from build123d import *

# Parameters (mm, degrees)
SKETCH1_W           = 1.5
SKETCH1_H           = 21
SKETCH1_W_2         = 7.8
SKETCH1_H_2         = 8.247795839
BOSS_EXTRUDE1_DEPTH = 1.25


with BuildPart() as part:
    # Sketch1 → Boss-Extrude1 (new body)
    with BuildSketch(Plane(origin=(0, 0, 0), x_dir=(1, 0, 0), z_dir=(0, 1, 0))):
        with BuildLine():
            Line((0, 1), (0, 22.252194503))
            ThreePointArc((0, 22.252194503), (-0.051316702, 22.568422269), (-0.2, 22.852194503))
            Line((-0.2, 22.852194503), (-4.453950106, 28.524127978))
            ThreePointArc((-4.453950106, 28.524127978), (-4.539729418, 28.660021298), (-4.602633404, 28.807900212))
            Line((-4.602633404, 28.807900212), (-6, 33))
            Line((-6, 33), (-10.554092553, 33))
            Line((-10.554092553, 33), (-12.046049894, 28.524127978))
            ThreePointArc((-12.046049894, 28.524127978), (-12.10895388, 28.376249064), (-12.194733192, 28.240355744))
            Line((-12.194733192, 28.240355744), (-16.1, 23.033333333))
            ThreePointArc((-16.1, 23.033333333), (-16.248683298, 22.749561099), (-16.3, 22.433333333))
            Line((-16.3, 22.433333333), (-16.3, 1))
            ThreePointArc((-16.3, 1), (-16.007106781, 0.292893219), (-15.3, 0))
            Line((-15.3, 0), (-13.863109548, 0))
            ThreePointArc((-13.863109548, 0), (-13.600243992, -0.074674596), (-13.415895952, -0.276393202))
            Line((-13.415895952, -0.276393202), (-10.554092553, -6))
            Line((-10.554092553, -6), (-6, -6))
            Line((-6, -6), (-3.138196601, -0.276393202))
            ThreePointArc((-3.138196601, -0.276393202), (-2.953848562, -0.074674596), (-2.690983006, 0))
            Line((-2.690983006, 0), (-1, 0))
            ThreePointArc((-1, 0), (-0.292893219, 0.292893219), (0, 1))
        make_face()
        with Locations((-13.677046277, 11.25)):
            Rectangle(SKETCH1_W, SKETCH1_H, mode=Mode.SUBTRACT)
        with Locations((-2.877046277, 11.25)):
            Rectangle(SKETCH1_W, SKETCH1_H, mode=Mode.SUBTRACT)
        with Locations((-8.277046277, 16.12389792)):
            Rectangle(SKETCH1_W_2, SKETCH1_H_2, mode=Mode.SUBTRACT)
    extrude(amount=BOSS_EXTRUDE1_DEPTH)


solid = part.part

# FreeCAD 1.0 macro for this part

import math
import FreeCAD as App
import Part
import Sketcher

V = App.Vector
Q = App.Units.Quantity


def add_polygon(sketch, points):
    """Adds a closed chain of lines whose ends are joined by coincident constraints."""
    first, n = sketch.GeometryCount, len(points)
    for a, b in zip(points, points[1:] + points[:1]):
        sketch.addGeometry(Part.LineSegment(App.Vector(*a, 0), App.Vector(*b, 0)), False)
    for i in range(n):
        sketch.addConstraint(Sketcher.Constraint("Coincident", first + i, 2, first + (i + 1) % n, 1))

doc = App.newDocument("Part")
body = doc.addObject("PartDesign::Body", "Body")

sketch1 = doc.addObject("Sketcher::SketchObject", "Sketch")
body.addObject(sketch1)
sketch1.AttachmentSupport = (doc.XZ_Plane, [""])
sketch1.MapMode = "FlatFace"
sketch1.addGeometry(Part.LineSegment(V(0, -1, 0), V(0, -22.25, 0)), False)
sketch1.addGeometry(Part.ArcOfCircle(Part.Circle(V(-1, -22.25, 0), V(0, 0, 1), 1), math.radians(-37), math.radians(0)), False)
sketch1.addGeometry(Part.LineSegment(V(-0.2, -22.85, 0), V(-4.45, -28.52, 0)), False)
sketch1.addGeometry(Part.ArcOfCircle(Part.Circle(V(-3.65, -29.12, 0), V(0, 0, 1), 1), math.radians(143.13), math.radians(161.57)), False)
sketch1.addGeometry(Part.LineSegment(V(-4.6, -28.81, 0), V(-6, -33, 0)), False)
sketch1.addGeometry(Part.LineSegment(V(-6, -33, 0), V(-10.55, -33, 0)), False)
sketch1.addGeometry(Part.LineSegment(V(-10.55, -33, 0), V(-12.05, -28.52, 0)), False)
sketch1.addGeometry(Part.ArcOfCircle(Part.Circle(V(-12.99, -28.84, 0), V(0, 0, 1), 1), math.radians(18.43), math.radians(36.87)), False)
sketch1.addGeometry(Part.LineSegment(V(-12.19, -28.24, 0), V(-16.1, -23.03, 0)), False)
sketch1.addGeometry(Part.ArcOfCircle(Part.Circle(V(-15.3, -22.43, 0), V(0, 0, 1), 1), math.radians(180), math.radians(217)), False)
sketch1.addGeometry(Part.LineSegment(V(-16.3, -22.43, 0), V(-16.3, -1, 0)), False)
sketch1.addGeometry(Part.ArcOfCircle(Part.Circle(V(-15.3, -1, 0), V(0, 0, 1), 1), math.radians(90), math.radians(180)), False)
sketch1.addGeometry(Part.LineSegment(V(-15.3, 0, 0), V(-13.86, 0, 0)), False)
sketch1.addGeometry(Part.ArcOfCircle(Part.Circle(V(-13.86, 0.5, 0), V(0, 0, 1), 0.5), math.radians(-90), math.radians(-27)), False)
sketch1.addGeometry(Part.LineSegment(V(-13.42, 0.28, 0), V(-10.55, 6, 0)), False)
sketch1.addGeometry(Part.LineSegment(V(-10.55, 6, 0), V(-6, 6, 0)), False)
sketch1.addGeometry(Part.LineSegment(V(-6, 6, 0), V(-3.14, 0.28, 0)), False)
sketch1.addGeometry(Part.ArcOfCircle(Part.Circle(V(-2.69, 0.5, 0), V(0, 0, 1), 0.5), math.radians(-153), math.radians(-90)), False)
sketch1.addGeometry(Part.LineSegment(V(-2.69, 0, 0), V(-1, 0, 0)), False)
sketch1.addGeometry(Part.ArcOfCircle(Part.Circle(V(-1, -1, 0), V(0, 0, 1), 1), math.radians(0), math.radians(90)), False)
add_polygon(sketch1, [(-12.93, -0.75), (-14.43, -0.75), (-14.43, -21.75), (-12.93, -21.75)])
add_polygon(sketch1, [(-4.38, -12), (-12.18, -12), (-12.18, -20.25), (-4.38, -20.25)])
add_polygon(sketch1, [(-2.13, -0.75), (-3.63, -0.75), (-3.63, -21.75), (-2.13, -21.75)])
sketch1.addConstraint([
    Sketcher.Constraint("Tangent", 0, 2, 1, 2),
    Sketcher.Constraint("Tangent", 1, 1, 2, 1),
    Sketcher.Constraint("Tangent", 2, 2, 3, 1),
    Sketcher.Constraint("Tangent", 3, 2, 4, 1),
    Sketcher.Constraint("Coincident", 4, 2, 5, 1),
    Sketcher.Constraint("Coincident", 5, 2, 6, 1),
    Sketcher.Constraint("Tangent", 6, 2, 7, 1),
    Sketcher.Constraint("Tangent", 7, 2, 8, 1),
    Sketcher.Constraint("Tangent", 8, 2, 9, 2),
    Sketcher.Constraint("Tangent", 9, 1, 10, 1),
    Sketcher.Constraint("Tangent", 10, 2, 11, 2),
    Sketcher.Constraint("Tangent", 11, 1, 12, 1),
    Sketcher.Constraint("Tangent", 12, 2, 13, 1),
    Sketcher.Constraint("Tangent", 13, 2, 14, 1),
    Sketcher.Constraint("Coincident", 14, 2, 15, 1),
    Sketcher.Constraint("Coincident", 15, 2, 16, 1),
    Sketcher.Constraint("Tangent", 16, 2, 17, 1),
    Sketcher.Constraint("Tangent", 17, 2, 18, 1),
    Sketcher.Constraint("Tangent", 18, 2, 19, 2),
    Sketcher.Constraint("Tangent", 19, 1, 0, 1),
    Sketcher.Constraint("Vertical", 0),
    Sketcher.Constraint("Horizontal", 5),
    Sketcher.Constraint("Vertical", 10),
    Sketcher.Constraint("Horizontal", 12),
    Sketcher.Constraint("Horizontal", 15),
    Sketcher.Constraint("Horizontal", 18),
    Sketcher.Constraint("Horizontal", 20),
    Sketcher.Constraint("Vertical", 21),
    Sketcher.Constraint("Horizontal", 22),
    Sketcher.Constraint("Vertical", 23),
    Sketcher.Constraint("Horizontal", 24),
    Sketcher.Constraint("Vertical", 25),
    Sketcher.Constraint("Horizontal", 26),
    Sketcher.Constraint("Vertical", 27),
    Sketcher.Constraint("Horizontal", 28),
    Sketcher.Constraint("Vertical", 29),
    Sketcher.Constraint("Horizontal", 30),
    Sketcher.Constraint("Vertical", 31),
    Sketcher.Constraint("Equal", 1, 3),
    Sketcher.Constraint("Equal", 3, 7),
    Sketcher.Constraint("Equal", 7, 9),
    Sketcher.Constraint("Equal", 9, 11),
    Sketcher.Constraint("Equal", 13, 17),
    Sketcher.Constraint("Equal", 11, 19),
    Sketcher.Constraint("PointOnObject", 0, 2, -2),
    Sketcher.Constraint("PointOnObject", 11, 1, -1),
    Sketcher.Constraint("PointOnObject", 17, 2, -1),
    Sketcher.Constraint("Horizontal", 2, 2, 6, 2),
    Sketcher.Constraint("Horizontal", 13, 2, 16, 2),
    Sketcher.Constraint("Horizontal", 23, 2, 28, 2),
    Sketcher.Constraint("Horizontal", 22, 2, 29, 2),
    Sketcher.Constraint("Vertical", 5, 2, 14, 2),
    Sketcher.Constraint("Vertical", 4, 2, 15, 2),
    Sketcher.Constraint("Equal", 22, 28),
    Sketcher.Constraint("Radius", 1, Q("1 mm")),
    Sketcher.Constraint("Radius", 13, Q("0.5 mm")),
    Sketcher.Constraint("DistanceY", 21, 2, 21, 1, Q("21 mm")),
    Sketcher.Constraint("DistanceX", 20, 2, 20, 1, Q("1.5 mm")),
    Sketcher.Constraint("DistanceX", 24, 2, 24, 1, Q("7.8 mm")),
    Sketcher.Constraint("DistanceX", 4, 2, -1, 1, Q("6 mm")),
    Sketcher.Constraint("DistanceY", 4, 2, -1, 1, Q("33 mm")),
    Sketcher.Constraint("DistanceY", -1, 1, 14, 2, Q("6 mm")),
    Sketcher.Constraint("DistanceY", 24, 2, -1, 1, Q("12 mm")),
    Sketcher.Constraint("DistanceX", 9, 3, -1, 1, Q("15.3 mm")),
    Sketcher.Constraint("DistanceX", 1, 1, -1, 1, Q("0.2 mm")),
    Sketcher.Constraint("DistanceX", 8, 2, -1, 1, Q("16.1 mm")),
    Sketcher.Constraint("DistanceY", 20, 2, -1, 1, Q("0.75 mm")),
    Sketcher.Constraint("DistanceX", 22, 2, 24, 2, Q("0.75 mm")),
    Sketcher.Constraint("DistanceX", 26, 2, 29, 2, Q("0.75 mm")),
    Sketcher.Constraint("DistanceX", 12, 1, 12, 2, Q("1.43689 mm")),
    Sketcher.Constraint("DistanceY", 3, 2, -1, 1, Q("28.8079 mm")),
    Sketcher.Constraint("DistanceX", 7, 2, 3, 2, Q("7.5921 mm")),
    Sketcher.Constraint("DistanceX", 13, 2, 16, 2, Q("10.277699 mm")),
    Sketcher.Constraint("DistanceY", 1, 3, 26, 2, Q("2.004399 mm")),
    Sketcher.Constraint("Distance", 4, Q("4.418861 mm")),
    Sketcher.Constraint("DistanceX", 20, 2, 13, 2, Q("1.01115 mm")),
])
pad1 = doc.addObject("PartDesign::Pad", "Pad")
body.addObject(pad1)
pad1.Profile = sketch1
pad1.Length = 1.25
pad1.Reversed = True

doc.recompute()
